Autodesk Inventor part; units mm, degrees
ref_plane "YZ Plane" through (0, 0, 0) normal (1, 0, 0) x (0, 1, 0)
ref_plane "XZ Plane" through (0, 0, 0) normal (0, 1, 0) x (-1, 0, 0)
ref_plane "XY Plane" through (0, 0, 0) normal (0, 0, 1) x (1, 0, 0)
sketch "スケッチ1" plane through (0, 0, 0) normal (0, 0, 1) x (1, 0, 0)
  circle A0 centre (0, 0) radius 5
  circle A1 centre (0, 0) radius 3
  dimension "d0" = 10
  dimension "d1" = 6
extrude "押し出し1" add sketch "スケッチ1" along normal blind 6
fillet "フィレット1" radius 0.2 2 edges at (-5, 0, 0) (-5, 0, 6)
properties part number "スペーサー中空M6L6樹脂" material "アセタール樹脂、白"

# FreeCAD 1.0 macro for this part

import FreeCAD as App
import Part
import Sketcher
from FreeCAD import Vector
Q = App.Units.Quantity


def edges_at(feature, points):
    """Names of the edges that pass closest to the given points."""
    edges = feature.Shape.Edges
    near = lambda p: min(range(len(edges)), key=lambda i: edges[i].distToShape(Part.Vertex(*p))[0])
    return sorted({f"Edge{near(p) + 1}" for p in points})

doc = App.newDocument("Part")
params = doc.addObject("Spreadsheet::Sheet", "Params")
for row, (alias, value) in enumerate([
    ("sketch1_diameter", "10 mm"),
    ("sketch1_diameter2", "6 mm"),
    ("pad1_length", "6 mm"),
    ("fillet_radius", "0.2 mm"),
], start=1):
    params.set(f"A{row}", alias)
    params.set(f"B{row}", "=" + value)
    params.setAlias(f"B{row}", alias)

body = doc.addObject("PartDesign::Body", "Body")

sketch1 = body.newObject("Sketcher::SketchObject", "Sketch")
sketch1.AttachmentSupport = (doc.getObject("XY_Plane"), [""])
sketch1.MapMode = "FlatFace"
sketch1.addGeometry([
    Part.Circle(Vector(0, 0, 0), Vector(0, 0, 1), 5),
    Part.Circle(Vector(0, 0, 0), Vector(0, 0, 1), 3),
], False)
sketch1.addConstraint([
    Sketcher.Constraint("Coincident", 0, 3, -1, 1),
    Sketcher.Constraint("Coincident", 1, 3, -1, 1),
    Sketcher.Constraint("Diameter", 0, Q("10 mm")),
    Sketcher.Constraint("Diameter", 1, Q("6 mm")),
])
sketch1.setExpression("Constraints[2]", "Params.sketch1_diameter")
sketch1.setExpression("Constraints[3]", "Params.sketch1_diameter2")
pad1 = body.newObject("PartDesign::Pad", "Pad")
pad1.Profile = sketch1
pad1.setExpression("Length", "Params.pad1_length")
doc.recompute()

fillet = body.newObject("PartDesign::Fillet", "Fillet")
fillet.Base = (pad1, edges_at(pad1, [(-5, 0, 0), (-5, 0, 6)]))
fillet.setExpression("Radius", "Params.fillet_radius")

doc.recompute()
